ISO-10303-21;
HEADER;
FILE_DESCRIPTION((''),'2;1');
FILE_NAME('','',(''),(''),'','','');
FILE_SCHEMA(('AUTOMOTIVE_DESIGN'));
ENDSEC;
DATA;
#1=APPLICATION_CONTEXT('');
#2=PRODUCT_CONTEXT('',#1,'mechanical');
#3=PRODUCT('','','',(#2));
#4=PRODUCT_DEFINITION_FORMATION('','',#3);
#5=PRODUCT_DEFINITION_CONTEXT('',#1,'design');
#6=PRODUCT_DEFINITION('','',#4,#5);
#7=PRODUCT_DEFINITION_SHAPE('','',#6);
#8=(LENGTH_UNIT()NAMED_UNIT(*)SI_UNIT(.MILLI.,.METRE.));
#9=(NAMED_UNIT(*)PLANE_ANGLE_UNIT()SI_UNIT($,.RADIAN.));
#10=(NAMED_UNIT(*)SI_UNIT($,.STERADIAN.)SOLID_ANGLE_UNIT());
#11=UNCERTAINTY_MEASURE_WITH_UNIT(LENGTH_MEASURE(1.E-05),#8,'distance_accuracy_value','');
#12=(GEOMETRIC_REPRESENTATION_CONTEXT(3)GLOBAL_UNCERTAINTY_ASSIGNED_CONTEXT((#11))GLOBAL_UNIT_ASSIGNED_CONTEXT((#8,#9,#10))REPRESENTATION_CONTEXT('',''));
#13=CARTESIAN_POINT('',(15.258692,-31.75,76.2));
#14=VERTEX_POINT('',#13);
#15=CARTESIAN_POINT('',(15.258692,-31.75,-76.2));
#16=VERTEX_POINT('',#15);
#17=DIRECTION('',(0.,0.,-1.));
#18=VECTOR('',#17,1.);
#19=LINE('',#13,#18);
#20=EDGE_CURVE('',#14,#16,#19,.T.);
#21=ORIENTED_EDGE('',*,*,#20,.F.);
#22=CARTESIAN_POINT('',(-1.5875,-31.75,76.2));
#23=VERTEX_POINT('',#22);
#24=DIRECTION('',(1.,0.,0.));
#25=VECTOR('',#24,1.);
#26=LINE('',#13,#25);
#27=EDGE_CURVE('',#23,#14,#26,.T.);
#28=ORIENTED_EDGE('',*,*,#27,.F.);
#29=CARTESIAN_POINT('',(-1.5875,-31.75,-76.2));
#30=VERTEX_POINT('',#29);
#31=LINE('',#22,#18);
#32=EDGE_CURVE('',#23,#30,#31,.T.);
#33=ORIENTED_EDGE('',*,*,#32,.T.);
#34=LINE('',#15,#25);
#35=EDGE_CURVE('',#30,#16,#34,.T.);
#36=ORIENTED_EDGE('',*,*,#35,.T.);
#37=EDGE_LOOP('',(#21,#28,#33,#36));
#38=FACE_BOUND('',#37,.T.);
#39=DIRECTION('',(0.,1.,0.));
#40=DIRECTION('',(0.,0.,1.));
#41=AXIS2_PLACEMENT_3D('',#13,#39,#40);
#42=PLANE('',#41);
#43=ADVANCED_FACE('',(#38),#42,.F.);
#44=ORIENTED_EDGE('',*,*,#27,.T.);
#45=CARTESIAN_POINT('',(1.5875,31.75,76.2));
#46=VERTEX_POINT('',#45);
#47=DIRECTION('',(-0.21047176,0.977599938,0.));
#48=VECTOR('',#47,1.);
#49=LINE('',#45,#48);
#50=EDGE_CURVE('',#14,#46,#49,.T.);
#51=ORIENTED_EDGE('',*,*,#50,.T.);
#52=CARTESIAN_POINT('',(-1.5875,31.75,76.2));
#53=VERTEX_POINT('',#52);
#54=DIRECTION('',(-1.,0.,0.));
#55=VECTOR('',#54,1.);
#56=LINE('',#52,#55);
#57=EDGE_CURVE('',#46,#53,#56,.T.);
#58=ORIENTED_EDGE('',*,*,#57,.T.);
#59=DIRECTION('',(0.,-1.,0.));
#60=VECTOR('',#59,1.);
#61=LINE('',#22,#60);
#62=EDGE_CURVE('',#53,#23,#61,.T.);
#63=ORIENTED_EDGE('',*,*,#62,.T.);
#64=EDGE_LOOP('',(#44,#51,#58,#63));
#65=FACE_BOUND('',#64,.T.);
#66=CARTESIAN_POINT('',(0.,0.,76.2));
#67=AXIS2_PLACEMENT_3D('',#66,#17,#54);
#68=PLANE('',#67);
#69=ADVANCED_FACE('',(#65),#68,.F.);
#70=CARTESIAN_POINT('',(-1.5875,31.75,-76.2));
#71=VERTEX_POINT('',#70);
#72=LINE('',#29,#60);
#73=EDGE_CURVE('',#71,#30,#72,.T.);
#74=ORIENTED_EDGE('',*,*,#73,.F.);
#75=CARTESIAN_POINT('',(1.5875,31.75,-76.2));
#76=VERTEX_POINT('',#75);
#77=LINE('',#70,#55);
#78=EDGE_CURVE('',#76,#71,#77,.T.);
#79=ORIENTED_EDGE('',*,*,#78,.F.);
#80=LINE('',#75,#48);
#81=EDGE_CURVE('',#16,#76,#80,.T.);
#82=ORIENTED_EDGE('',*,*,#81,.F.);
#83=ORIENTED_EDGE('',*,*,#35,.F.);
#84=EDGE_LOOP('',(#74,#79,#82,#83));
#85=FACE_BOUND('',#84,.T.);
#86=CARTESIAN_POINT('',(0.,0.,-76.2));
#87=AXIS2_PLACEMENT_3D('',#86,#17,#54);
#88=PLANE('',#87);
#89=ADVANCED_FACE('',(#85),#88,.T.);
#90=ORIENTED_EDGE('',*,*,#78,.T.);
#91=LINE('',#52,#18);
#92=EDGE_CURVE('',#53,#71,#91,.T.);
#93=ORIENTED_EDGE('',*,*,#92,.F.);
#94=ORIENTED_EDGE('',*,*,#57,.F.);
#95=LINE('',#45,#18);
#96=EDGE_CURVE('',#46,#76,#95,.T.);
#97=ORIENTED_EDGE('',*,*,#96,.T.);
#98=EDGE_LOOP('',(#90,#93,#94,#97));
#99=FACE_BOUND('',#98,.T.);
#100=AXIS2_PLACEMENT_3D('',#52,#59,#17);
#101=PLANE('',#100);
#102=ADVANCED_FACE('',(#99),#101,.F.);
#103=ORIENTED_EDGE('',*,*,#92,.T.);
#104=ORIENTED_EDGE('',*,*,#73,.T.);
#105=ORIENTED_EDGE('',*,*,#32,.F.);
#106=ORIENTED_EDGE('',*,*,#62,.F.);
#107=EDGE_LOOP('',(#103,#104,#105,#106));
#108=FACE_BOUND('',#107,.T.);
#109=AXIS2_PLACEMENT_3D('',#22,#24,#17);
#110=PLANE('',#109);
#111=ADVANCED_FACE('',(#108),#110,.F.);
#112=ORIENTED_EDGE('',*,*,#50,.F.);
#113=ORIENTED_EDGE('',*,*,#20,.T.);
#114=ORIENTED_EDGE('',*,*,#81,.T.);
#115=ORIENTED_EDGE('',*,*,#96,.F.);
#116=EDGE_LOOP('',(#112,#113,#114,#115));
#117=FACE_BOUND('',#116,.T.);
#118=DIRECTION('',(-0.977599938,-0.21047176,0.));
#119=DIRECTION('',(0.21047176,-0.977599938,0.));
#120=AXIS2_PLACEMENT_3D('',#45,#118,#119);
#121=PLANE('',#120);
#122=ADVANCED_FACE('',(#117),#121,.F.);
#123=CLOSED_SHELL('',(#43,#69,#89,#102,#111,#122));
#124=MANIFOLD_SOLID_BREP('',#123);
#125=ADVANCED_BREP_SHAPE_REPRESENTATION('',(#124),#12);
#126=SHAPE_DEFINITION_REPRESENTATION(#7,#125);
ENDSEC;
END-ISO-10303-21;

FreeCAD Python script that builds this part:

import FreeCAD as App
import Part
import Sketcher
Q = App.Units.Quantity

doc = App.newDocument("Part")
body = doc.addObject("PartDesign::Body", "Body")

sketch1 = body.newObject("Sketcher::SketchObject", "Sketch")
sketch1.AttachmentSupport = (doc.getObject("XY_Plane"), [""])
sketch1.MapMode = "FlatFace"
sketch1.addGeometry(Part.LineSegment(App.Vector(1.6, 31.8, 0), App.Vector(-1.6, 31.8, 0)), False)
sketch1.addGeometry(Part.LineSegment(App.Vector(-1.6, 31.8, 0), App.Vector(-1.6, -31.8, 0)), False)
sketch1.addGeometry(Part.LineSegment(App.Vector(-1.6, -31.8, 0), App.Vector(15.3, -31.8, 0)), False)
sketch1.addGeometry(Part.LineSegment(App.Vector(15.3, -31.8, 0), App.Vector(1.6, 31.8, 0)), False)
sketch1.addConstraint(Sketcher.Constraint("Coincident", 0, 2, 1, 1))
sketch1.addConstraint(Sketcher.Constraint("Coincident", 1, 2, 2, 1))
sketch1.addConstraint(Sketcher.Constraint("Coincident", 2, 2, 3, 1))
sketch1.addConstraint(Sketcher.Constraint("Coincident", 3, 2, 0, 1))
sketch1.addConstraint(Sketcher.Constraint("Horizontal", 0))
sketch1.addConstraint(Sketcher.Constraint("Vertical", 1))
sketch1.addConstraint(Sketcher.Constraint("Horizontal", 2))
sketch1.addConstraint(Sketcher.Constraint("Symmetric", 1, 2, 3, 2, -1, 1))
sketch1.addConstraint(Sketcher.Constraint("DistanceY", 1, 2, 1, 1, Q("2.5 in")))
sketch1.addConstraint(Sketcher.Constraint("DistanceX", 0, 2, 0, 1, Q("0.125 in")))
sketch1.addConstraint(Sketcher.Constraint("Angle", 3, Q("102.15 deg")))
pad1 = body.newObject("PartDesign::Pad", "Pad")
pad1.Profile = sketch1
pad1.Length = Q("6 in")
pad1.Midplane = True

doc.recompute()
